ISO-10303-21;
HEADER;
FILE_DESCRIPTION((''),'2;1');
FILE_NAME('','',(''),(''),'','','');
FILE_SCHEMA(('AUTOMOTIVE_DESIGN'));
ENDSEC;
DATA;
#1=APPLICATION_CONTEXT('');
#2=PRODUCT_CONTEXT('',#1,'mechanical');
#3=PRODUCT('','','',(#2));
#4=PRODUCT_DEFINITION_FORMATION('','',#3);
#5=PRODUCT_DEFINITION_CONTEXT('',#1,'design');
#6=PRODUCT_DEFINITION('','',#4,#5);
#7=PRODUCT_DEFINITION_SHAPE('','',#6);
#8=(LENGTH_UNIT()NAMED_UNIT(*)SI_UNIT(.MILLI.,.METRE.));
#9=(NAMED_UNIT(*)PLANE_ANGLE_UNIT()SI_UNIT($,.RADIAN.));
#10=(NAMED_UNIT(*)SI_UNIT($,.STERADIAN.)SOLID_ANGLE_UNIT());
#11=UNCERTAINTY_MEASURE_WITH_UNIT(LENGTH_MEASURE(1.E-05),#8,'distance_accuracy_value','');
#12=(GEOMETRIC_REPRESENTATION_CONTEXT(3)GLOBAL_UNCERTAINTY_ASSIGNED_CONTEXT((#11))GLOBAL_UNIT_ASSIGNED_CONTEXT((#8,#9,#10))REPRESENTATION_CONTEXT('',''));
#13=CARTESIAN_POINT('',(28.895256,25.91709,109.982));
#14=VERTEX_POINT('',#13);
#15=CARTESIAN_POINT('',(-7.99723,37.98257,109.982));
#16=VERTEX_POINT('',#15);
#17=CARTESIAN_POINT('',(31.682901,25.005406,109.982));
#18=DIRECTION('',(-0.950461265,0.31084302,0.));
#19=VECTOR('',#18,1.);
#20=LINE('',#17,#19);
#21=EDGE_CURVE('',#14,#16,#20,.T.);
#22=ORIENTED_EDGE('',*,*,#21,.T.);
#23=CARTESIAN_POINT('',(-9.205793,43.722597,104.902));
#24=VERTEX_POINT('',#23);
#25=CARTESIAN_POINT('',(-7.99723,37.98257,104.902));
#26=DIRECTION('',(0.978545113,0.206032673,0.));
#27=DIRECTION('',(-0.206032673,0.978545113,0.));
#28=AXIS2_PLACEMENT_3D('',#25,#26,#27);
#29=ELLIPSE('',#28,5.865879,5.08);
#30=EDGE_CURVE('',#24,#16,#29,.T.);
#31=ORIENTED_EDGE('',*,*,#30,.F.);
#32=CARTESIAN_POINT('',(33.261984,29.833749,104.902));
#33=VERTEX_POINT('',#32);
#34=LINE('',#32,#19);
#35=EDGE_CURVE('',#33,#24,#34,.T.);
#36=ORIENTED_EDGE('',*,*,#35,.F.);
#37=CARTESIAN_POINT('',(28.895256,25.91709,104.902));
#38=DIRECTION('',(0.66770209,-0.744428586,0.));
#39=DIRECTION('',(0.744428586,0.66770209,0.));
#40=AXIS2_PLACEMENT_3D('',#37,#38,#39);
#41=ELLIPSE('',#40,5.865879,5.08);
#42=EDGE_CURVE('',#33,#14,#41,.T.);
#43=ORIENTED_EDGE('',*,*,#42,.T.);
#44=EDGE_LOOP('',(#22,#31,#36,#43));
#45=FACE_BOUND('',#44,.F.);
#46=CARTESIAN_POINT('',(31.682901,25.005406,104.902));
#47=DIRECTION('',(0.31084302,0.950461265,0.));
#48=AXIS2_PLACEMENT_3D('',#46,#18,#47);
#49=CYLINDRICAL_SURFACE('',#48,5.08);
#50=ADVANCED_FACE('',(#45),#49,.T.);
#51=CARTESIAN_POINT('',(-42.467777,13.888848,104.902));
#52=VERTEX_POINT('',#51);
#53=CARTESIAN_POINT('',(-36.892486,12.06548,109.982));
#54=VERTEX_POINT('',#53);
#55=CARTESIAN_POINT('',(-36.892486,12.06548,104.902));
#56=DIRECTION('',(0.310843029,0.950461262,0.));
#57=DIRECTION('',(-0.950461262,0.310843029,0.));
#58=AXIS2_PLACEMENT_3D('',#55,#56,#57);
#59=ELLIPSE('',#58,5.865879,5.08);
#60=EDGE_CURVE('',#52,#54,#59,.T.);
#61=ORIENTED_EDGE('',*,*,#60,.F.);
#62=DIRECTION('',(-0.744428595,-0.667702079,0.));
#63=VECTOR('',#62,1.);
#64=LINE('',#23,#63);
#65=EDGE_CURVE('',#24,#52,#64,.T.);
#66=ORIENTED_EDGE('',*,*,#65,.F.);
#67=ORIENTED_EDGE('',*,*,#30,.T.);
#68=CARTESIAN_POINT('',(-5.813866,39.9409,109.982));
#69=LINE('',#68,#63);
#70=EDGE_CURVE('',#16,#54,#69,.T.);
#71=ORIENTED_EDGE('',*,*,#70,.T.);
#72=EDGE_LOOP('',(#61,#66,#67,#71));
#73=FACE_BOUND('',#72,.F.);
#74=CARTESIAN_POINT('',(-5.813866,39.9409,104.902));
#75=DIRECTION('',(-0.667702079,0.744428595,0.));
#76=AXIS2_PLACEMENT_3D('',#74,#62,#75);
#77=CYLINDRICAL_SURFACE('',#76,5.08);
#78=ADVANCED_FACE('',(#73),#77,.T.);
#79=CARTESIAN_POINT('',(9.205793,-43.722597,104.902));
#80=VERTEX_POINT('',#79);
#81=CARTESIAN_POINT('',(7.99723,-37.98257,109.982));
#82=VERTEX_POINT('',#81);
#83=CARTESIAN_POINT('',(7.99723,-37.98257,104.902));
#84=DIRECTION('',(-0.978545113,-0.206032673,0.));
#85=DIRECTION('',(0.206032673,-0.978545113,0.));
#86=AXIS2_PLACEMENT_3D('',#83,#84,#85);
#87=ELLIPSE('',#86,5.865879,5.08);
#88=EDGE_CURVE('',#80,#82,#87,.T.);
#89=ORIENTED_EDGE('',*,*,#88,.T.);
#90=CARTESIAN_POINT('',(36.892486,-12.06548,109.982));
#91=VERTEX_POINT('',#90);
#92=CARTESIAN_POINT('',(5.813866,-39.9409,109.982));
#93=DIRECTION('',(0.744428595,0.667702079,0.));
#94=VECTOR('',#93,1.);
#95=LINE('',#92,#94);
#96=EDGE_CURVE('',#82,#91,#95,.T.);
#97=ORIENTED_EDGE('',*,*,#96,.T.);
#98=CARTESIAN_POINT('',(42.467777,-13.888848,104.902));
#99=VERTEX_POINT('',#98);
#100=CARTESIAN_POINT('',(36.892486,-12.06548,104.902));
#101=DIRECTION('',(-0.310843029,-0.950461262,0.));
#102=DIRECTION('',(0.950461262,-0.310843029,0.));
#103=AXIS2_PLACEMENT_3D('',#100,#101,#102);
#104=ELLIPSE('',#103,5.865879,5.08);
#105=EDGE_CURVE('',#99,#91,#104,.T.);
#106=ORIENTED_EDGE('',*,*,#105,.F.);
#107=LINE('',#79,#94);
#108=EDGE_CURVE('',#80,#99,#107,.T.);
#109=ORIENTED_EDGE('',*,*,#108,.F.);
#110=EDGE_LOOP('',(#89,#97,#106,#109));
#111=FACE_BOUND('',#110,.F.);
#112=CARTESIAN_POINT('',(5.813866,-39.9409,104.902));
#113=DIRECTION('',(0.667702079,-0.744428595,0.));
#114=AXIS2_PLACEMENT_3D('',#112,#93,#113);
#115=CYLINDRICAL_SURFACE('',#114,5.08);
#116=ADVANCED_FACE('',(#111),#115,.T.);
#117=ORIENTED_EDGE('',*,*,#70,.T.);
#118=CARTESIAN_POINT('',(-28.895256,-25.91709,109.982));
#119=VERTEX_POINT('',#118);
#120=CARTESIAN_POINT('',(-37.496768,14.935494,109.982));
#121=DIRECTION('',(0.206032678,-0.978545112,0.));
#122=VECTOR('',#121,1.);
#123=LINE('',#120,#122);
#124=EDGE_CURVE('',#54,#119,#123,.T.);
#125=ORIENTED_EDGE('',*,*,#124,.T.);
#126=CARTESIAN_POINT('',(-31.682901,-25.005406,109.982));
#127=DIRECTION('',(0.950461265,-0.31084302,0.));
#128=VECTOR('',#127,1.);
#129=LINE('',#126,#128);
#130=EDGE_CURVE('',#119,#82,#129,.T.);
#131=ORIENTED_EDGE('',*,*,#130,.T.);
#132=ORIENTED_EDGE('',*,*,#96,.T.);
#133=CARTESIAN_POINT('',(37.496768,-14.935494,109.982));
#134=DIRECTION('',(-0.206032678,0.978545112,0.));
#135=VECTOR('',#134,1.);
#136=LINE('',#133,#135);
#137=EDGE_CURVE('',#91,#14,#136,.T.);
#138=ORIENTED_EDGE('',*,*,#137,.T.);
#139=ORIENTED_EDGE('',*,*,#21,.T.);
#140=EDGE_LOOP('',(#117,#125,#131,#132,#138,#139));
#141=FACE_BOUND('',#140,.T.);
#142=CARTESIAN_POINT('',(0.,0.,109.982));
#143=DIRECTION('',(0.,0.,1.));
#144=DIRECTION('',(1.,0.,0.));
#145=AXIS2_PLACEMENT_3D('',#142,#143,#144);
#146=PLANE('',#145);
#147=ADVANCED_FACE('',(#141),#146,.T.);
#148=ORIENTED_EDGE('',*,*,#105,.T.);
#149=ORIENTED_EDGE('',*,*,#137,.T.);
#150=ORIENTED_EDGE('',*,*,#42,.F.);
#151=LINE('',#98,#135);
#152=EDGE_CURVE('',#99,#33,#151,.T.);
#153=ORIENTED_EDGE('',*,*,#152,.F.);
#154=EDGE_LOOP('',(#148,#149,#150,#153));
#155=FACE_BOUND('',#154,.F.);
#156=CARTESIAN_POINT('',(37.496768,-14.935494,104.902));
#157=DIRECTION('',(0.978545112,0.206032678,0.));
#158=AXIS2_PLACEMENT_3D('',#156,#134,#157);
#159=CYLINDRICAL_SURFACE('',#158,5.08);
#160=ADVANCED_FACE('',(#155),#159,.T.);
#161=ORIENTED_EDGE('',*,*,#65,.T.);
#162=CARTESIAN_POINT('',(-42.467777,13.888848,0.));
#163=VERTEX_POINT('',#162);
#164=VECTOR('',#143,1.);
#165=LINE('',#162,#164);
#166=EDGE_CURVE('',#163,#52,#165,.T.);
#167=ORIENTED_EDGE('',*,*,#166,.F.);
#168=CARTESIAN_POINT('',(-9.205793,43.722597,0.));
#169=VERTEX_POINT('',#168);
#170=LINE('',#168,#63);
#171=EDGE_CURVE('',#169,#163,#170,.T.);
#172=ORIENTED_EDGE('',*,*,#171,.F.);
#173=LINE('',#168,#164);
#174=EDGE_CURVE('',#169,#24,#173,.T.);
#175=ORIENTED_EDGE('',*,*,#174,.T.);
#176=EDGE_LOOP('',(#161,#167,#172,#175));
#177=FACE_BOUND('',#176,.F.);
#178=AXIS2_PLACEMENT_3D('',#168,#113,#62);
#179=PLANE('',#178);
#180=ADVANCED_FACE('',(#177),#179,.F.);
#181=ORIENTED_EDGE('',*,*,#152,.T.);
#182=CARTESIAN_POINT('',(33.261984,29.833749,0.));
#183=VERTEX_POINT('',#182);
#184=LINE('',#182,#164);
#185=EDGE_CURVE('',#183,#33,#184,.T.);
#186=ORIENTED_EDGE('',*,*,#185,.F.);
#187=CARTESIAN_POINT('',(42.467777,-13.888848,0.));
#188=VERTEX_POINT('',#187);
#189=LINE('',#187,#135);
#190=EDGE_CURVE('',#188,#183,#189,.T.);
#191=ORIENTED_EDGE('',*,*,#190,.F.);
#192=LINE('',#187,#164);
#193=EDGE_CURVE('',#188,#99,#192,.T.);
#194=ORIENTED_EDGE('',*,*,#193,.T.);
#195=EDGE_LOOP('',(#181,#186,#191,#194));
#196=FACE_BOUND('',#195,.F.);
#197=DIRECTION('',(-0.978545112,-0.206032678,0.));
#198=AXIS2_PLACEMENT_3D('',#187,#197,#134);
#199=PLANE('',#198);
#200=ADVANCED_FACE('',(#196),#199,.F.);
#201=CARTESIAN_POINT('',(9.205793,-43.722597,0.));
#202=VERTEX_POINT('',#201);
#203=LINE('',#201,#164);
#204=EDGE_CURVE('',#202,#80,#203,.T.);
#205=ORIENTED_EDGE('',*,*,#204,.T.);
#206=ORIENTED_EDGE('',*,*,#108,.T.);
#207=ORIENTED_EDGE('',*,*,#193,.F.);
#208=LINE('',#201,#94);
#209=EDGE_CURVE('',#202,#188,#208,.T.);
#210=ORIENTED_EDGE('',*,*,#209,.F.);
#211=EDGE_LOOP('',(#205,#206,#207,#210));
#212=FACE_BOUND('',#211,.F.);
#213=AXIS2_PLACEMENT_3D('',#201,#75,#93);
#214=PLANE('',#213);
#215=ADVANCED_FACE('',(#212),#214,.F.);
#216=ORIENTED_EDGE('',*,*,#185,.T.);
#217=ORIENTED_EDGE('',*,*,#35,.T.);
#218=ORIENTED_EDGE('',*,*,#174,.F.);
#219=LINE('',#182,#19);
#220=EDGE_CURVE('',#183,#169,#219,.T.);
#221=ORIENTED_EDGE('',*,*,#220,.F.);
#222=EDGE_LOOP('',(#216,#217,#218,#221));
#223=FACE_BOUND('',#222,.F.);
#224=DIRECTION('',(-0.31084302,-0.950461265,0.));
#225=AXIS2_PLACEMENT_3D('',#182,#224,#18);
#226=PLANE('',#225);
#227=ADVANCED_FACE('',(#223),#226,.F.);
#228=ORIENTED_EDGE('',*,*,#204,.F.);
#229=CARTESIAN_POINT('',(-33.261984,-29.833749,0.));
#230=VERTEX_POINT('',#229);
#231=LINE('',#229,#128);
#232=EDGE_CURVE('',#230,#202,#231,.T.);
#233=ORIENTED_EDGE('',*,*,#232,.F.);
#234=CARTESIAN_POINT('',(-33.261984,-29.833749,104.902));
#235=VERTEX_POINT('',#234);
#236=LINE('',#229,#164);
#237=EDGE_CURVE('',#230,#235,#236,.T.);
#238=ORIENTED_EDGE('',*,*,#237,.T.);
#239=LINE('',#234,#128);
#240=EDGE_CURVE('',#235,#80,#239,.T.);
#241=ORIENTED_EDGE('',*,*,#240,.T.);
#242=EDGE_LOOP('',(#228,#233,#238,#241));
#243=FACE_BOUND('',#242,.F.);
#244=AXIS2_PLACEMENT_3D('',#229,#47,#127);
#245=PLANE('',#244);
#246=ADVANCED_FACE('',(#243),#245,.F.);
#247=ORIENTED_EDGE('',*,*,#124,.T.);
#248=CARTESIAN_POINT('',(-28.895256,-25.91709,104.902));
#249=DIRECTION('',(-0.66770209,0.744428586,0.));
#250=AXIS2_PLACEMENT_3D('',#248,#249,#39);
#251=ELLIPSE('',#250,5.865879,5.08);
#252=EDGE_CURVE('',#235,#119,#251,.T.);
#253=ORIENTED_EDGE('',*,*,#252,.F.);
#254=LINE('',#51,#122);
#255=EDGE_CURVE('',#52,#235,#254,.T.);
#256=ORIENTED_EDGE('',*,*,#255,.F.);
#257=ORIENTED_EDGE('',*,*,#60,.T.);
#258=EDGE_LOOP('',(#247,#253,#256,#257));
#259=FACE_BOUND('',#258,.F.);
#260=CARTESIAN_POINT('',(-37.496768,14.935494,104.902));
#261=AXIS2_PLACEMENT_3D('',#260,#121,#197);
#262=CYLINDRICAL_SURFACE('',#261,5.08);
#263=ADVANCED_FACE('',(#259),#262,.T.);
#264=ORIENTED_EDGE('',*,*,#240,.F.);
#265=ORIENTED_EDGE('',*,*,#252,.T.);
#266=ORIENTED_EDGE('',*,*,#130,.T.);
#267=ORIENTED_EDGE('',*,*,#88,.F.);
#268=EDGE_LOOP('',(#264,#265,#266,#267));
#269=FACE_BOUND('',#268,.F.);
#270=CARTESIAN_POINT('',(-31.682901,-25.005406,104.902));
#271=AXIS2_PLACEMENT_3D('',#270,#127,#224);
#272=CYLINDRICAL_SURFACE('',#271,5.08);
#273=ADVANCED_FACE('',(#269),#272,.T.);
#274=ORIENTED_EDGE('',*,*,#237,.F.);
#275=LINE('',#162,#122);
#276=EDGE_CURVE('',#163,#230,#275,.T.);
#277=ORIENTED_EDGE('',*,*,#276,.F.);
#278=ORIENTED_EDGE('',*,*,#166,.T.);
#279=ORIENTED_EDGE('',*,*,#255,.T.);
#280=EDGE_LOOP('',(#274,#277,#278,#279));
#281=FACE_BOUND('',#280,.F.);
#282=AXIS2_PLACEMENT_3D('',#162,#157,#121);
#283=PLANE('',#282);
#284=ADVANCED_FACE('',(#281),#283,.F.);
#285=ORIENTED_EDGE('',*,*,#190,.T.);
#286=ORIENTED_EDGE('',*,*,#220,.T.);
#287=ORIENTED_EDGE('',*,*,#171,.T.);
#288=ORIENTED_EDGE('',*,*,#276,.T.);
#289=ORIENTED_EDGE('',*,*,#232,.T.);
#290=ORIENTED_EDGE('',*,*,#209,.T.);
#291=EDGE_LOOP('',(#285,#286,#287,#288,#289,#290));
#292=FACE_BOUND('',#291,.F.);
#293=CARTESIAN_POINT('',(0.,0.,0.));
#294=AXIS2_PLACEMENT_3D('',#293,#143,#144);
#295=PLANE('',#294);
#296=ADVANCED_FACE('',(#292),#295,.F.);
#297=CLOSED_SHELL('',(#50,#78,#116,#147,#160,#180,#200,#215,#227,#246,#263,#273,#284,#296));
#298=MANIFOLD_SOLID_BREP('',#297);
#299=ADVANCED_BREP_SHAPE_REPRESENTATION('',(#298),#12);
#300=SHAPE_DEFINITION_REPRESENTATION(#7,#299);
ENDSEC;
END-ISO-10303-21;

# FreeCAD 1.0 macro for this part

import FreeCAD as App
import Part
import Sketcher

V = App.Vector
Q = App.Units.Quantity


def edges_at(feature, points):
    """Names of the edges that pass closest to the given points."""
    edges = feature.Shape.Edges
    near = lambda p: min(range(len(edges)), key=lambda i: edges[i].distToShape(Part.Vertex(*p))[0])
    return sorted({f"Edge{near(p) + 1}" for p in points})

doc = App.newDocument("Part")
body = doc.addObject("PartDesign::Body", "Body")

# Sketch on XY plane
sketch1 = body.newObject("Sketcher::SketchObject", "Sketch")
sketch1.AttachmentSupport = (doc.getObject("XY_Plane"), [""])
sketch1.MapMode = "FlatFace"
sketch1.addGeometry(Part.LineSegment(V(9.205793, -43.722597, 0), V(42.467777, -13.888848, 0)), False)
sketch1.addGeometry(Part.LineSegment(V(42.467777, -13.888848, 0), V(33.261984, 29.833749, 0)), False)
sketch1.addGeometry(Part.LineSegment(V(33.261984, 29.833749, 0), V(-9.205793, 43.722597, 0)), False)
sketch1.addGeometry(Part.LineSegment(V(-9.205793, 43.722597, 0), V(-42.467777, 13.888848, 0)), False)
sketch1.addGeometry(Part.LineSegment(V(-42.467777, 13.888848, 0), V(-33.261984, -29.833749, 0)), False)
sketch1.addGeometry(Part.LineSegment(V(-33.261984, -29.833749, 0), V(9.205793, -43.722597, 0)), False)
sketch1.addConstraint(Sketcher.Constraint("Coincident", 0, 2, 1, 1))
sketch1.addConstraint(Sketcher.Constraint("Coincident", 1, 2, 2, 1))
sketch1.addConstraint(Sketcher.Constraint("Coincident", 2, 2, 3, 1))
sketch1.addConstraint(Sketcher.Constraint("Coincident", 3, 2, 4, 1))
sketch1.addConstraint(Sketcher.Constraint("Coincident", 4, 2, 5, 1))
sketch1.addConstraint(Sketcher.Constraint("Coincident", 5, 2, 0, 1))
sketch1.addConstraint(Sketcher.Constraint("Symmetric", 0, 2, 3, 2, -1, 1))
sketch1.addConstraint(Sketcher.Constraint("Symmetric", 1, 2, 4, 2, -1, 1))
sketch1.addConstraint(Sketcher.Constraint("Symmetric", 2, 2, 5, 2, -1, 1))
sketch1.addConstraint(Sketcher.Constraint("Equal", 0, 1))
sketch1.addConstraint(Sketcher.Constraint("Equal", 1, 2))
sketch1.addConstraint(Sketcher.Constraint("DistanceY", 3, 2, 1, 2, 15.944901))
sketch1.addConstraint(Sketcher.Constraint("DistanceY", 4, 2, 1, 2, 59.667498))
sketch1.addConstraint(Sketcher.Constraint("Distance", 0, 44.681228))
sketch1.addConstraint(Sketcher.Constraint("DistanceX", 2, 2, 0, 2, 51.67357))
pad1 = body.newObject("PartDesign::Pad", "Pad")
pad1.Profile = sketch1
pad1.Length = Q("4.33 in")
doc.recompute()

fillet = body.newObject("PartDesign::Fillet", "Fillet")
fillet.Base = (pad1, edges_at(pad1, [
    (-12.028, -36.778, 109.982),
    (25.837, -28.806, 109.982),
    (37.865, 7.972, 109.982),
    (12.028, 36.778, 109.982),
    (-25.837, 28.806, 109.982),
    (-37.865, -7.972, 109.982),
]))
fillet.Radius = Q("0.2 in")

doc.recompute()
